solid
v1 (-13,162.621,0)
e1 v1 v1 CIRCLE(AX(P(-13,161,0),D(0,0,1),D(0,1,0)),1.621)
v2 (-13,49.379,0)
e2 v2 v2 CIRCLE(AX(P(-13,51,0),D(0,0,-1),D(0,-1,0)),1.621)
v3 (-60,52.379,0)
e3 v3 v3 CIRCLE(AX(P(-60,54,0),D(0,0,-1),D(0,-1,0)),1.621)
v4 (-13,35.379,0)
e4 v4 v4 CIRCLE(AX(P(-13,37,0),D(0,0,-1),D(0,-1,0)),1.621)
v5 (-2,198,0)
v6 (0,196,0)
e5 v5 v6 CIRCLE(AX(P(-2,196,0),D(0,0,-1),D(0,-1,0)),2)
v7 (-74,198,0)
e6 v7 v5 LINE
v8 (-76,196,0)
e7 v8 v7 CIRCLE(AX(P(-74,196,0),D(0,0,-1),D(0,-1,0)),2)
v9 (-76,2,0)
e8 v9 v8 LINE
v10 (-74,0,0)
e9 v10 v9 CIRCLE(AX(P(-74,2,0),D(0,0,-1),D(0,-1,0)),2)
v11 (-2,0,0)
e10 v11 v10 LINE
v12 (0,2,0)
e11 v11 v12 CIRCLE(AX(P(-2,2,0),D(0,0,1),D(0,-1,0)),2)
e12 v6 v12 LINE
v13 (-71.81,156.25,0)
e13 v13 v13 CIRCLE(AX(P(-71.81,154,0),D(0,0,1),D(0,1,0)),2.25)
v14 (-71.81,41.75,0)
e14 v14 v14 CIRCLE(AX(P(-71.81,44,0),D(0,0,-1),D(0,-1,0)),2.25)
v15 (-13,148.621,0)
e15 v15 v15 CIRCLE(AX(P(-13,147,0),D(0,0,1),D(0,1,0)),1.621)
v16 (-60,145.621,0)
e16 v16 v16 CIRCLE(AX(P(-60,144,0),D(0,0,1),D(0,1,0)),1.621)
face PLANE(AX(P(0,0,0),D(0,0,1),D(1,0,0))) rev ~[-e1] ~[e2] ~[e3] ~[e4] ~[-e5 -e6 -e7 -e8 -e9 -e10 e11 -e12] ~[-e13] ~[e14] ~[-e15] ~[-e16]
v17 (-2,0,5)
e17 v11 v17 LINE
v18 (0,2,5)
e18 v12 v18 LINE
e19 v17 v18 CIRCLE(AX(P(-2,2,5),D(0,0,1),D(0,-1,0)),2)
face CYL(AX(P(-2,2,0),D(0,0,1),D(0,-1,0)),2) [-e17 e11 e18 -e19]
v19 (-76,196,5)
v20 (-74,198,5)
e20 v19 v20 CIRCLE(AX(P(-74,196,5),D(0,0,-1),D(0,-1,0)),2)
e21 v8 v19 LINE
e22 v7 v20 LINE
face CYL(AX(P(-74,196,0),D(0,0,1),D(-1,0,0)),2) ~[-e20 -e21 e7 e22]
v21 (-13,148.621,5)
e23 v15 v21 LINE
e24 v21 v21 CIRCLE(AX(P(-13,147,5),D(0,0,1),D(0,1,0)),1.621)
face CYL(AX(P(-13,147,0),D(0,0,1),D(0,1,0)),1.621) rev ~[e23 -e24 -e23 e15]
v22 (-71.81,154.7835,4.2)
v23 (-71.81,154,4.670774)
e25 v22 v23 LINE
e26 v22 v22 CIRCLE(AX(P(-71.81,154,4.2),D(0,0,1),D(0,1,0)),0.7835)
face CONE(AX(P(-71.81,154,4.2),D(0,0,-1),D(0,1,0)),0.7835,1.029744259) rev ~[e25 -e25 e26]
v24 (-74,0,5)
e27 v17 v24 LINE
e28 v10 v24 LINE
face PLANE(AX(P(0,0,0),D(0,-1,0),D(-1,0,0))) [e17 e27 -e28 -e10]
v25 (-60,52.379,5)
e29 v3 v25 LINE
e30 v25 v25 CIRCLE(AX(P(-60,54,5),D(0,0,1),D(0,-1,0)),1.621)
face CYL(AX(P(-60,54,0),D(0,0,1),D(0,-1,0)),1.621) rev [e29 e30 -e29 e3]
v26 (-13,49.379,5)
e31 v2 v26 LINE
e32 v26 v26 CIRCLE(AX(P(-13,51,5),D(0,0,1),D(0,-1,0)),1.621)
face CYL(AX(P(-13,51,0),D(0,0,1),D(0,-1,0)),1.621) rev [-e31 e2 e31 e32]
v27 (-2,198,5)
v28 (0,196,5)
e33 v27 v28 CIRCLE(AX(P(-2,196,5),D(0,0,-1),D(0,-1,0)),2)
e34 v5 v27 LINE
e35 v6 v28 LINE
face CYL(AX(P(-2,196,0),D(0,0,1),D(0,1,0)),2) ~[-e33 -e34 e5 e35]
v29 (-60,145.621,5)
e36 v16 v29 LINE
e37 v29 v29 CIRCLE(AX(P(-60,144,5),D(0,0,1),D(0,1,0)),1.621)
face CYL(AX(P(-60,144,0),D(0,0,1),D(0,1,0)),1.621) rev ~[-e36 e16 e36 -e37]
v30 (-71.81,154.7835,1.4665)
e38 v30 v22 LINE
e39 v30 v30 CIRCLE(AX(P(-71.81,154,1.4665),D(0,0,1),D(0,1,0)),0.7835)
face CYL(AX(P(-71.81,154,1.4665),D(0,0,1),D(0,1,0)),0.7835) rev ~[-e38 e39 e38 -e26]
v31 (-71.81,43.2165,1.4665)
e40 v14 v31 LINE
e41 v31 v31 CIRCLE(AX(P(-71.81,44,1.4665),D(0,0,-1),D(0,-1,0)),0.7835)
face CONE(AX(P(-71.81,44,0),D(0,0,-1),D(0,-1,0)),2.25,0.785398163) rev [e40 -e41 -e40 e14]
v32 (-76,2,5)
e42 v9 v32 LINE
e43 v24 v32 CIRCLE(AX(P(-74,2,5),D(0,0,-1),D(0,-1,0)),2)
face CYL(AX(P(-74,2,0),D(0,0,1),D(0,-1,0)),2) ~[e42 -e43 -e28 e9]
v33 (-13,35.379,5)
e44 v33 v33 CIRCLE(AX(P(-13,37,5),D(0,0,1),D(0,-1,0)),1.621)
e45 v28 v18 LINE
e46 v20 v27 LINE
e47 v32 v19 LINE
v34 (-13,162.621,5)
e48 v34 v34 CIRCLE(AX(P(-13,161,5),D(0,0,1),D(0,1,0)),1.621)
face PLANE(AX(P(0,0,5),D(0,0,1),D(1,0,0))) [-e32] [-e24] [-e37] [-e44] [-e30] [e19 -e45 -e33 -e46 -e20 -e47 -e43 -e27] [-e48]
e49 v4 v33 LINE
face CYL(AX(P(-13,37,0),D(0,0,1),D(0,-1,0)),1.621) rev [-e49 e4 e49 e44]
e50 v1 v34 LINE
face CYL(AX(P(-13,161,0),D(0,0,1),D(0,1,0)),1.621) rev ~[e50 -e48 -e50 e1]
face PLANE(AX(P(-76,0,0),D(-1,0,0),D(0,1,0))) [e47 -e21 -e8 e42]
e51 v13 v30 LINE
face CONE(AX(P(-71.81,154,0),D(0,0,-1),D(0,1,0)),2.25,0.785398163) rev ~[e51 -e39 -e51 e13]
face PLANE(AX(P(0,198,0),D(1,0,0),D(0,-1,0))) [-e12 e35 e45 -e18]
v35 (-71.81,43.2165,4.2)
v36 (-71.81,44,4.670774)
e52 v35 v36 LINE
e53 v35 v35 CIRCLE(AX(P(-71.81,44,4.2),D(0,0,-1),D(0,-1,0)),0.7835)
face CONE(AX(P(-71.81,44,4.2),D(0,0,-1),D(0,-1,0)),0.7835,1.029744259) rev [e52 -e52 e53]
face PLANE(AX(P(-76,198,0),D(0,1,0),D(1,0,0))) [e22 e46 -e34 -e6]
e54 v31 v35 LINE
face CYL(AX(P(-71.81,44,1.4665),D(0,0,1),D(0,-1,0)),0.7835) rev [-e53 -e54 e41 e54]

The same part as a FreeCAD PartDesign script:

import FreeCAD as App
import Part
import Sketcher
from FreeCAD import Vector


def edges_at(feature, points):
    """Names of the edges that pass closest to the given points."""
    edges = feature.Shape.Edges
    near = lambda p: min(range(len(edges)), key=lambda i: edges[i].distToShape(Part.Vertex(*p))[0])
    return sorted({f"Edge{near(p) + 1}" for p in points})

doc = App.newDocument("Part")
body = doc.addObject("PartDesign::Body", "Body")

# Sketch on XY plane
sketch1 = doc.addObject("Sketcher::SketchObject", "Sketch")
body.addObject(sketch1)
sketch1.AttachmentSupport = (doc.XY_Plane, [""])
sketch1.MapMode = "FlatFace"
sketch1.addGeometry(Part.LineSegment(Vector(-76, 0, 0), Vector(0, 0, 0)), False)
sketch1.addGeometry(Part.LineSegment(Vector(0, 0, 0), Vector(0, 198, 0)), False)
sketch1.addGeometry(Part.LineSegment(Vector(0, 198, 0), Vector(-76, 198, 0)), False)
sketch1.addGeometry(Part.LineSegment(Vector(-76, 198, 0), Vector(-76, 0, 0)), False)
sketch1.addConstraint(Sketcher.Constraint("Coincident", 0, 2, 1, 1))
sketch1.addConstraint(Sketcher.Constraint("Coincident", 1, 2, 2, 1))
sketch1.addConstraint(Sketcher.Constraint("Coincident", 2, 2, 3, 1))
sketch1.addConstraint(Sketcher.Constraint("Coincident", 3, 2, 0, 1))
sketch1.addConstraint(Sketcher.Constraint("Horizontal", 0))
sketch1.addConstraint(Sketcher.Constraint("Vertical", 1))
sketch1.addConstraint(Sketcher.Constraint("Horizontal", 2))
sketch1.addConstraint(Sketcher.Constraint("Vertical", 3))
sketch1.addConstraint(Sketcher.Constraint("Coincident", 0, 2, -1, 1))
sketch1.addConstraint(Sketcher.Constraint("DistanceX", 0, 1, 0, 2, 76.0))
sketch1.addConstraint(Sketcher.Constraint("DistanceY", 1, 1, 1, 2, 198.0))
pad1 = doc.addObject("PartDesign::Pad", "Pad")
body.addObject(pad1)
pad1.Profile = sketch1
pad1.Length = 5
doc.recompute()

fillet = doc.addObject("PartDesign::Fillet", "Fillet")
body.addObject(fillet)
fillet.Base = (pad1, edges_at(pad1, [
    (0, 198, 2.5),
    (-76, 198, 2.5),
    (-76, 0, 2.5),
    (0, 0, 2.5),
]))
fillet.Radius = 2

# Sketch on XY plane
sketch2 = doc.addObject("Sketcher::SketchObject", "Sketch001")
body.addObject(sketch2)
sketch2.AttachmentSupport = (doc.XY_Plane, [""])
sketch2.MapMode = "FlatFace"
sketch2.addGeometry(Part.Circle(Vector(-13, 161, 0), Vector(0, 0, 1), 1.6), False)
sketch2.addGeometry(Part.Circle(Vector(-13, 147, 0), Vector(0, 0, 1), 1.6), False)
sketch2.addGeometry(Part.Circle(Vector(-60, 144, 0), Vector(0, 0, 1), 1.6), False)
sketch2.addConstraint(Sketcher.Constraint("Equal", 0, 1))
sketch2.addConstraint(Sketcher.Constraint("Equal", 1, 2))
sketch2.addConstraint(Sketcher.Constraint("Vertical", 0, 3, 1, 3))
sketch2.addConstraint(Sketcher.Constraint("Diameter", 0, 3.242))
sketch2.addConstraint(Sketcher.Constraint("DistanceX", 0, 3, -1, 1, 13.0))
sketch2.addConstraint(Sketcher.Constraint("DistanceY", -1, 1, 0, 3, 161.0))
sketch2.addConstraint(Sketcher.Constraint("DistanceY", -1, 1, 1, 3, 147.0))
sketch2.addConstraint(Sketcher.Constraint("DistanceX", 2, 3, -1, 1, 60.0))
sketch2.addConstraint(Sketcher.Constraint("DistanceY", -1, 1, 2, 3, 144.0))
doc.recompute()
hole = doc.addObject("PartDesign::Hole", "Hole")
body.addObject(hole)
hole.Profile = sketch2
hole.ThreadType = "None"
hole.Diameter = 3.242
hole.DepthType = "ThroughAll"
hole.Reversed = True

# Sketch on XY plane
sketch3 = doc.addObject("Sketcher::SketchObject", "Sketch002")
body.addObject(sketch3)
sketch3.AttachmentSupport = (doc.XY_Plane, [""])
sketch3.MapMode = "FlatFace"
sketch3.addGeometry(Part.Circle(Vector(-71.8, 154, 0), Vector(0, 0, 1), 0.8), False)
sketch3.addConstraint(Sketcher.Constraint("Diameter", 0, 1.567))
sketch3.addConstraint(Sketcher.Constraint("DistanceY", -1, 1, 0, 3, 154.0))
sketch3.addConstraint(Sketcher.Constraint("DistanceX", 0, 3, -1, 1, 71.81))
doc.recompute()
hole2 = doc.addObject("PartDesign::Hole", "Hole001")
body.addObject(hole2)
hole2.Profile = sketch3
hole2.ThreadType = "None"
hole2.Diameter = 1.567
hole2.DepthType = "Dimension"
hole2.Depth = 4.2
hole2.DrillPoint = "Angled"
hole2.DrillPointAngle = 118
hole2.HoleCutType = "Countersink"
hole2.HoleCutDiameter = 4.5
hole2.HoleCutCountersinkAngle = 90
hole2.Reversed = True
doc.recompute()

datumplane = doc.addObject("PartDesign::Plane", "DatumPlane")
body.addObject(datumplane)
datumplane.AttachmentSupport = (doc.XZ_Plane, [""])
datumplane.MapMode = "FlatFace"
datumplane.AttachmentOffset = App.Placement(Vector(0, 0, -99), App.Rotation())
mirrored = doc.addObject("PartDesign::Mirrored", "Mirrored")
body.addObject(mirrored)
mirrored.Originals = [hole2, hole]
mirrored.MirrorPlane = (datumplane, [""])
body.Tip = mirrored

doc.recompute()
